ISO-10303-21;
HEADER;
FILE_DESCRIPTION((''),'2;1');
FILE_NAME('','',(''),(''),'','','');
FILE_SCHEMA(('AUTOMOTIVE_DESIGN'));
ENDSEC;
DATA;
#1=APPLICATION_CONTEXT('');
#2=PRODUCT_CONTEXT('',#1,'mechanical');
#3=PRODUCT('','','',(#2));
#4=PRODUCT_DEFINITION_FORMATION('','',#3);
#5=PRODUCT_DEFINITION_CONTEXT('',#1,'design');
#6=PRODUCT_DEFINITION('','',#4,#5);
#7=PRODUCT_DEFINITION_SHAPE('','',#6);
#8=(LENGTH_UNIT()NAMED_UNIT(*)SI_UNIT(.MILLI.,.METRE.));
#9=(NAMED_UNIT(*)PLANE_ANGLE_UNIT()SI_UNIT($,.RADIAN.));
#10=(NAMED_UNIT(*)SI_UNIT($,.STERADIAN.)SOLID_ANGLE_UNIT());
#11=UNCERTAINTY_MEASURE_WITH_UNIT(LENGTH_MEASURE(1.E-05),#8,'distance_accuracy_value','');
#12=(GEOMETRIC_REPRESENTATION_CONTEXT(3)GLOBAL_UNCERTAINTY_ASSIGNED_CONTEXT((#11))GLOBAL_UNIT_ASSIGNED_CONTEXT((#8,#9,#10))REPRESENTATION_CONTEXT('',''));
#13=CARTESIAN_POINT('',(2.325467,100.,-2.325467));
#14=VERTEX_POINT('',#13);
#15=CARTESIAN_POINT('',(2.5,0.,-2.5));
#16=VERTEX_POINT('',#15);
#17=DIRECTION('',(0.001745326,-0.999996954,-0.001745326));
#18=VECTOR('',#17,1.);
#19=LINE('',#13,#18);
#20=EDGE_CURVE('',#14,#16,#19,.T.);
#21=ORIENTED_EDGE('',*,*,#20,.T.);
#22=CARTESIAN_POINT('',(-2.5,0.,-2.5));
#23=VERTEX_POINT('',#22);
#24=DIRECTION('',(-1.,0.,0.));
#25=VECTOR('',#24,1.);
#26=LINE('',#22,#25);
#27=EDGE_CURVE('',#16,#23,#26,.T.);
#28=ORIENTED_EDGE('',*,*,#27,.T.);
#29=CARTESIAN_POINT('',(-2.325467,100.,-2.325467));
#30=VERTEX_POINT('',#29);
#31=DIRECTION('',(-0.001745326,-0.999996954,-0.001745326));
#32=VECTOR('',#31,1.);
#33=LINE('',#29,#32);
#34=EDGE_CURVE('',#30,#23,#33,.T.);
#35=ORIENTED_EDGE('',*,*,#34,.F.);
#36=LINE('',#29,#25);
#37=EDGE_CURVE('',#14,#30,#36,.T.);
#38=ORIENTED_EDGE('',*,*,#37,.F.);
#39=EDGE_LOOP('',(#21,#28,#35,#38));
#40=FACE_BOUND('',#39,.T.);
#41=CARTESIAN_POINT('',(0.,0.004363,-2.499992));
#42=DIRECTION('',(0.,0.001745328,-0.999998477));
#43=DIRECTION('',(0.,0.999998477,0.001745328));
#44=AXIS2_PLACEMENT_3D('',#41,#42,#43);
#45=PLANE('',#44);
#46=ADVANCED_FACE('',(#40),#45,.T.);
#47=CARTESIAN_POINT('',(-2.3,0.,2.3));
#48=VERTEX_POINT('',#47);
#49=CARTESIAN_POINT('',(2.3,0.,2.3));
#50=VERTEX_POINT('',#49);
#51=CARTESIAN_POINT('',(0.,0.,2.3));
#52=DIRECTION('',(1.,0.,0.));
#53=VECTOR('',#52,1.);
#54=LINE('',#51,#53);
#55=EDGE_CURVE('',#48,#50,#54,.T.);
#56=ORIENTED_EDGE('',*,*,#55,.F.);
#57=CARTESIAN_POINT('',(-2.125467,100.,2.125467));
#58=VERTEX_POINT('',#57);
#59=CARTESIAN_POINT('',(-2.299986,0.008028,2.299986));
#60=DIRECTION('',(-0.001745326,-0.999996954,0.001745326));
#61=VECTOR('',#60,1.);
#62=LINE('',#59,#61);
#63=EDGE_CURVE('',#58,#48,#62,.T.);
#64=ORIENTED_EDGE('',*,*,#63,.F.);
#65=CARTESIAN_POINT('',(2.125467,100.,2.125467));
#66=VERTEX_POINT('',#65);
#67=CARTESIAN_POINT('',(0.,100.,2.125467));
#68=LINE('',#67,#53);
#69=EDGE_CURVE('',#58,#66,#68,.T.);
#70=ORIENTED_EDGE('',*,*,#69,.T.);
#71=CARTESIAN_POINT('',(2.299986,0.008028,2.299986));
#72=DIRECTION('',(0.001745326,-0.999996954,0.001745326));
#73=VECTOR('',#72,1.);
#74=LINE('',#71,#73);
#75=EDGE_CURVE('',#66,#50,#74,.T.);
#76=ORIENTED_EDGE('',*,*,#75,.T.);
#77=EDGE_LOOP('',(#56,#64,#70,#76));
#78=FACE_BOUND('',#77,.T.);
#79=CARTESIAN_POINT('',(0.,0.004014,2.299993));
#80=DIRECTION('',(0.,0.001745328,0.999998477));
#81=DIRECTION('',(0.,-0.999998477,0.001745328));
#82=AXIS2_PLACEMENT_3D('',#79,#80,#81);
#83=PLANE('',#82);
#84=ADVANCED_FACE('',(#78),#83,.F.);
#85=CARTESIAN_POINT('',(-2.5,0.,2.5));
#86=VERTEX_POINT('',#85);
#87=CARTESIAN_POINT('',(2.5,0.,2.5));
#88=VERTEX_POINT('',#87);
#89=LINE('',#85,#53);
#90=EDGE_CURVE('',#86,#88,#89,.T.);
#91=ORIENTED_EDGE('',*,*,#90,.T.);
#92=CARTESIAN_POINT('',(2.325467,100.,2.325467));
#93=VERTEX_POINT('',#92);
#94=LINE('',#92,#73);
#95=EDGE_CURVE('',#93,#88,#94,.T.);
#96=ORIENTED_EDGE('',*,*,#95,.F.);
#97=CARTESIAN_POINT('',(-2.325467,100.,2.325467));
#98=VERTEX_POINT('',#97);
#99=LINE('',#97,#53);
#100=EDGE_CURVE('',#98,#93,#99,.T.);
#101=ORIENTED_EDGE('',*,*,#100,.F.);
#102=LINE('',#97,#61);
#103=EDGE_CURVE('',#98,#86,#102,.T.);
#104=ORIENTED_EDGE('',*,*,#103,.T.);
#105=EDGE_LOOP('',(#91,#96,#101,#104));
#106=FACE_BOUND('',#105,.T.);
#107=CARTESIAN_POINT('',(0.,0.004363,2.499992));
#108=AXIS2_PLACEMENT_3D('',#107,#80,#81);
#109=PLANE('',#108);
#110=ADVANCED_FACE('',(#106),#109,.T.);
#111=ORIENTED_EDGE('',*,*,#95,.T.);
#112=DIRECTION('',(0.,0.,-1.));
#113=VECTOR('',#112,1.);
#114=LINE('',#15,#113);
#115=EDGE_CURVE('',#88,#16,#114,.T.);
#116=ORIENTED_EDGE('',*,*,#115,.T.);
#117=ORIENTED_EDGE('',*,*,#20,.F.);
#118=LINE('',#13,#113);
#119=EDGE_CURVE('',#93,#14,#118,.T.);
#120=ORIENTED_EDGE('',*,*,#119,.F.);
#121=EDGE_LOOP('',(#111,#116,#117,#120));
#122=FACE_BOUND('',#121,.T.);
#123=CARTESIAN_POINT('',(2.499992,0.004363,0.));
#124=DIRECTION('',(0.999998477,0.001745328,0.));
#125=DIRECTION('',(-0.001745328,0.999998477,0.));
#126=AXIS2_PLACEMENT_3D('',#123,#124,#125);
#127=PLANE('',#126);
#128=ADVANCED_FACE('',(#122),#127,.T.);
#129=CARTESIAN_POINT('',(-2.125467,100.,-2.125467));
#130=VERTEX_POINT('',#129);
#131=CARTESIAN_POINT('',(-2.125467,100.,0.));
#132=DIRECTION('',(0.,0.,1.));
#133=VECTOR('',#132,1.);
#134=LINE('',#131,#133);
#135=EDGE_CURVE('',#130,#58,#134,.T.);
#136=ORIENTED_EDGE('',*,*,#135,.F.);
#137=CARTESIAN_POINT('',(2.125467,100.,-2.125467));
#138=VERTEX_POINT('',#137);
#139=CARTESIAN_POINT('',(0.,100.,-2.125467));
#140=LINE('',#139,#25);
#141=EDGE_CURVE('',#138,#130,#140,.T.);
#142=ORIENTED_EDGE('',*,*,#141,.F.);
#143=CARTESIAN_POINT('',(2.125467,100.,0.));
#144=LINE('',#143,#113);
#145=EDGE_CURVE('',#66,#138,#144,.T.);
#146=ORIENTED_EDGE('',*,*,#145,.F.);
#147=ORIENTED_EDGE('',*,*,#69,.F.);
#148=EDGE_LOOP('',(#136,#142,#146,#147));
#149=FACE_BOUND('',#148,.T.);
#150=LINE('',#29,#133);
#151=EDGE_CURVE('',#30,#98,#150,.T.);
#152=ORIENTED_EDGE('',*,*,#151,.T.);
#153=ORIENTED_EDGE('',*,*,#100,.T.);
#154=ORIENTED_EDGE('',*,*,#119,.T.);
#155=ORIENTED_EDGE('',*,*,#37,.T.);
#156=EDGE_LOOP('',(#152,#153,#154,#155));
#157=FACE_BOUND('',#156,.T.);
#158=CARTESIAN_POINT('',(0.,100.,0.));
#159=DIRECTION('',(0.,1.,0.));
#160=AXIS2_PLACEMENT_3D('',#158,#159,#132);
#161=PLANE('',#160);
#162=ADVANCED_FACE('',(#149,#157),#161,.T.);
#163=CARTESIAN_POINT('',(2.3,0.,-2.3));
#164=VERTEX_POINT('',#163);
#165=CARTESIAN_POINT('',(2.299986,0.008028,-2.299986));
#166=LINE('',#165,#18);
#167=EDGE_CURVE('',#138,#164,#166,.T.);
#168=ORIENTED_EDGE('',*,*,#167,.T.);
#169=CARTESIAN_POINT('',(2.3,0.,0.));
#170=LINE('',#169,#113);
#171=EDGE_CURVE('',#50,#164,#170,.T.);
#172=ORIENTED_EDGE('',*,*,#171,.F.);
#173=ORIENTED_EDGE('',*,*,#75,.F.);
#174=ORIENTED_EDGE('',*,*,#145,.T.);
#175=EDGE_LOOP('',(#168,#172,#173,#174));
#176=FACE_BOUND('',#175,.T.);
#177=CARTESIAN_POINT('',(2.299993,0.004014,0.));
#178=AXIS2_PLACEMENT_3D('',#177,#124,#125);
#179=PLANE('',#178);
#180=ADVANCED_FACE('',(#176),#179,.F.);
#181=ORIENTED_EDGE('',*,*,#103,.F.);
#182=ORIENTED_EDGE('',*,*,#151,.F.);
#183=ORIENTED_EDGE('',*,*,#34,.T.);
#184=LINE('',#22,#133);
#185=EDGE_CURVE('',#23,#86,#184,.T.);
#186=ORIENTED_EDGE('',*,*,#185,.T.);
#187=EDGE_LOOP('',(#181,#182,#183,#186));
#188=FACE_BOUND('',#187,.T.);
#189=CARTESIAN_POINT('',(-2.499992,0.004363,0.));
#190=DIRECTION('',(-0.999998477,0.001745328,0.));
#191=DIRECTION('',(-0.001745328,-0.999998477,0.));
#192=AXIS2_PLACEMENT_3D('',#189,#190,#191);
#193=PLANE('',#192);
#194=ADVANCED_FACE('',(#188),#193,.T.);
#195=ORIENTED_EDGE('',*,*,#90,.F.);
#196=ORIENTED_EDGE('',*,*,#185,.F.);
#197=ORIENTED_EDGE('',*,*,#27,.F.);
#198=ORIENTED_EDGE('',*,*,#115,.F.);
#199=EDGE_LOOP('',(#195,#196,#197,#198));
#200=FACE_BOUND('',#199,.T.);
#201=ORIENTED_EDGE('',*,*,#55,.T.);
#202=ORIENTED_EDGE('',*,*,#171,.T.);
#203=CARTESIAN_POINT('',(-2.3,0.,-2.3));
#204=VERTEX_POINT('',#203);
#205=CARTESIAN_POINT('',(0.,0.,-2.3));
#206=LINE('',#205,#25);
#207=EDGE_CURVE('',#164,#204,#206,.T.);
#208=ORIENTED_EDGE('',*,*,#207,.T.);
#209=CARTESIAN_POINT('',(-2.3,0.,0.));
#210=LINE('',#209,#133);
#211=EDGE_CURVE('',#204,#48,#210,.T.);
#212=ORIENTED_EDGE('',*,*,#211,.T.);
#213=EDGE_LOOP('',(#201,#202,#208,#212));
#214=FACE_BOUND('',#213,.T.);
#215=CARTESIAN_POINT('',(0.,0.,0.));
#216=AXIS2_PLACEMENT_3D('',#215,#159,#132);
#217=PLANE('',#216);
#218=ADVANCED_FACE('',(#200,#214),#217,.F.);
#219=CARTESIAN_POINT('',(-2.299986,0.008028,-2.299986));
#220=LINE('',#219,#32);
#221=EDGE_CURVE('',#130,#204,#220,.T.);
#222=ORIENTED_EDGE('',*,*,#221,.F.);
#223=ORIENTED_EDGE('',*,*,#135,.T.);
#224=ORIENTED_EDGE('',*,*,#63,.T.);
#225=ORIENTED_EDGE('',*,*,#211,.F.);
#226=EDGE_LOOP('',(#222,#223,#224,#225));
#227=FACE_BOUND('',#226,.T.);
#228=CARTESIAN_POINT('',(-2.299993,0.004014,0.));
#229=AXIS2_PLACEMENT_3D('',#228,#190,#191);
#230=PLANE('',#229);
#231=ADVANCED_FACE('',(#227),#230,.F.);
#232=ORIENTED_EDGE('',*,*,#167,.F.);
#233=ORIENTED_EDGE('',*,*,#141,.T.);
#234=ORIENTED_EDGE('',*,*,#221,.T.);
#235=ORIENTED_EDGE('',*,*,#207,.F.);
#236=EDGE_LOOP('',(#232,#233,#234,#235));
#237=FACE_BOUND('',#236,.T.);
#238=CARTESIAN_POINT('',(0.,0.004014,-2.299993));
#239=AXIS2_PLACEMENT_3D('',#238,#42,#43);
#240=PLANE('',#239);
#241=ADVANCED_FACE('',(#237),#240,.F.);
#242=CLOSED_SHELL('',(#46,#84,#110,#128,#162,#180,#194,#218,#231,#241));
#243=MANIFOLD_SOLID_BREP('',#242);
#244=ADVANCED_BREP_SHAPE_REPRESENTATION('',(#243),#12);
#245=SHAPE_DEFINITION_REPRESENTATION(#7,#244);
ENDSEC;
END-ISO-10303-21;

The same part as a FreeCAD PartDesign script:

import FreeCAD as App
import Part
import Sketcher

V = App.Vector


def faces_at(feature, points):
    """Names of the faces that lie closest to the given points."""
    faces = feature.Shape.Faces
    near = lambda p: min(range(len(faces)), key=lambda i: faces[i].distToShape(Part.Vertex(*p))[0])
    return sorted({f"Face{near(p) + 1}" for p in points})

doc = App.newDocument("Part")
body = doc.addObject("PartDesign::Body", "Body")

# Sketch on XZ plane
sketch1 = body.newObject("Sketcher::SketchObject", "Sketch")
sketch1.AttachmentSupport = (doc.getObject("XZ_Plane"), [""])
sketch1.MapMode = "FlatFace"
sketch1.AttachmentOffset = App.Placement(V(0, 0, -100), App.Rotation())
sketch1.addGeometry(Part.LineSegment(V(2.3, -2.3, 0), V(-2.3, -2.3, 0)), False)
sketch1.addGeometry(Part.LineSegment(V(-2.3, -2.3, 0), V(-2.3, 2.3, 0)), False)
sketch1.addGeometry(Part.LineSegment(V(-2.3, 2.3, 0), V(2.3, 2.3, 0)), False)
sketch1.addGeometry(Part.LineSegment(V(2.3, 2.3, 0), V(2.3, -2.3, 0)), False)
sketch1.addConstraint(Sketcher.Constraint("Coincident", 0, 2, 1, 1))
sketch1.addConstraint(Sketcher.Constraint("Coincident", 1, 2, 2, 1))
sketch1.addConstraint(Sketcher.Constraint("Coincident", 2, 2, 3, 1))
sketch1.addConstraint(Sketcher.Constraint("Coincident", 3, 2, 0, 1))
sketch1.addConstraint(Sketcher.Constraint("Horizontal", 0))
sketch1.addConstraint(Sketcher.Constraint("Vertical", 1))
sketch1.addConstraint(Sketcher.Constraint("Horizontal", 2))
sketch1.addConstraint(Sketcher.Constraint("Vertical", 3))
sketch1.addConstraint(Sketcher.Constraint("Symmetric", 0, 2, 2, 2, -1, 1))
sketch1.addConstraint(Sketcher.Constraint("Equal", 2, 1))
sketch1.addConstraint(Sketcher.Constraint("DistanceX", 0, 2, 0, 1, 4.650934))

# Sketch on XZ plane
sketch2 = body.newObject("Sketcher::SketchObject", "Sketch001")
sketch2.AttachmentSupport = (doc.getObject("XZ_Plane"), [""])
sketch2.MapMode = "FlatFace"
sketch2.addGeometry(Part.LineSegment(V(2, -2, 0), V(-2, -2, 0)), False)
sketch2.addGeometry(Part.LineSegment(V(-2, -2, 0), V(-2, 2, 0)), False)
sketch2.addGeometry(Part.LineSegment(V(-2, 2, 0), V(2, 2, 0)), False)
sketch2.addGeometry(Part.LineSegment(V(2, 2, 0), V(2, -2, 0)), False)
sketch2.addConstraint(Sketcher.Constraint("Coincident", 0, 2, 1, 1))
sketch2.addConstraint(Sketcher.Constraint("Coincident", 1, 2, 2, 1))
sketch2.addConstraint(Sketcher.Constraint("Coincident", 2, 2, 3, 1))
sketch2.addConstraint(Sketcher.Constraint("Coincident", 3, 2, 0, 1))
sketch2.addConstraint(Sketcher.Constraint("Horizontal", 0))
sketch2.addConstraint(Sketcher.Constraint("Vertical", 1))
sketch2.addConstraint(Sketcher.Constraint("Horizontal", 2))
sketch2.addConstraint(Sketcher.Constraint("Vertical", 3))
sketch2.addConstraint(Sketcher.Constraint("Symmetric", 0, 2, 2, 2, -1, 1))
sketch2.addConstraint(Sketcher.Constraint("Equal", 2, 1))
sketch2.addConstraint(Sketcher.Constraint("DistanceX", 0, 2, 0, 1, 5.0))

additiveloft = body.newObject("PartDesign::AdditiveLoft", "AdditiveLoft")
additiveloft.Profile = sketch1
additiveloft.Sections = [sketch2]
doc.recompute()

thickness = body.newObject("PartDesign::Thickness", "Thickness")
thickness.Base = (additiveloft, faces_at(additiveloft, [(0, 0, 0), (0, 100, 0)]))
thickness.Value = 0.2
thickness.Reversed = True
thickness.Join = "Intersection"

doc.recompute()
